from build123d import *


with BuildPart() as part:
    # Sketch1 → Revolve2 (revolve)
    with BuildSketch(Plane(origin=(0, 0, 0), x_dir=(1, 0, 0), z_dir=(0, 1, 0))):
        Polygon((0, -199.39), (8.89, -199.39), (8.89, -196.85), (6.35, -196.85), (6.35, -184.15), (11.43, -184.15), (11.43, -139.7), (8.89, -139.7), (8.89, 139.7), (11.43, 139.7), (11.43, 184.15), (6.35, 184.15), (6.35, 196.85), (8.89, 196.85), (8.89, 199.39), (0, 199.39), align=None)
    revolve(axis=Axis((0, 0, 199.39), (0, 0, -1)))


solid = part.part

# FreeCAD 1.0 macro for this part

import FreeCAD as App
import Part
import Sketcher
Q = App.Units.Quantity


def add_polygon(sketch, points):
    """Adds a closed chain of lines whose ends are joined by coincident constraints."""
    first, n = sketch.GeometryCount, len(points)
    for a, b in zip(points, points[1:] + points[:1]):
        sketch.addGeometry(Part.LineSegment(App.Vector(*a, 0), App.Vector(*b, 0)), False)
    for i in range(n):
        sketch.addConstraint(Sketcher.Constraint("Coincident", first + i, 2, first + (i + 1) % n, 1))

doc = App.newDocument("Part")
params = doc.addObject("Spreadsheet::Sheet", "Params")
for row, (alias, value) in enumerate([
    ("sketch1_height", "11 in"),
    ("sketch1_width", "0.1 in"),
    ("sketch1_height2", "0.5 in"),
    ("sketch1_height3", "15.7 in"),
    ("sketch1_width2", "0.35 in"),
    ("revolution_angle", "360 deg"),
], start=1):
    params.set(f"A{row}", alias)
    params.set(f"B{row}", "=" + value)
    params.setAlias(f"B{row}", alias)

body = doc.addObject("PartDesign::Body", "Body")

# Sketch on XZ plane
sketch1 = body.newObject("Sketcher::SketchObject", "Sketch")
sketch1.AttachmentSupport = (doc.getObject("XZ_Plane"), [""])
sketch1.MapMode = "FlatFace"
add_polygon(sketch1, [(0, 199.4), (8.9, 199.4), (8.9, 196.8), (6.3, 196.8), (6.3, 184.2), (11.4, 184.2), (11.4, 139.7), (8.9, 139.7), (8.9, -139.7), (11.4, -139.7), (11.4, -184.2), (6.3, -184.2), (6.3, -196.8), (8.9, -196.8), (8.9, -199.4), (0, -199.4)])  # lines 0-15
sketch1.addConstraint(Sketcher.Constraint("Horizontal", 0))
sketch1.addConstraint(Sketcher.Constraint("Vertical", 1))
sketch1.addConstraint(Sketcher.Constraint("Horizontal", 2))
sketch1.addConstraint(Sketcher.Constraint("Vertical", 3))
sketch1.addConstraint(Sketcher.Constraint("Horizontal", 4))
sketch1.addConstraint(Sketcher.Constraint("Vertical", 5))
sketch1.addConstraint(Sketcher.Constraint("Horizontal", 6))
sketch1.addConstraint(Sketcher.Constraint("Vertical", 7))
sketch1.addConstraint(Sketcher.Constraint("Horizontal", 8))
sketch1.addConstraint(Sketcher.Constraint("Vertical", 9))
sketch1.addConstraint(Sketcher.Constraint("Horizontal", 10))
sketch1.addConstraint(Sketcher.Constraint("Vertical", 11))
sketch1.addConstraint(Sketcher.Constraint("Horizontal", 12))
sketch1.addConstraint(Sketcher.Constraint("Vertical", 13))
sketch1.addConstraint(Sketcher.Constraint("Horizontal", 14))
sketch1.addConstraint(Sketcher.Constraint("Vertical", 15))
sketch1.addConstraint(Sketcher.Constraint("Symmetric", 14, 2, 15, 2, -1, 1))
sketch1.addConstraint(Sketcher.Constraint("Symmetric", 5, 2, 8, 2, -1))
sketch1.addConstraint(Sketcher.Constraint("Symmetric", 3, 2, 10, 2, -1))
sketch1.addConstraint(Sketcher.Constraint("Symmetric", 1, 2, 12, 2, -1))
sketch1.addConstraint(Sketcher.Constraint("Vertical", 1, 2, 6, 2))
sketch1.addConstraint(Sketcher.Constraint("Equal", 2, 6))
sketch1.addConstraint(Sketcher.Constraint("Equal", 12, 1))
sketch1.addConstraint(Sketcher.Constraint("DistanceY", 7, 2, 7, 1, Q("11 in")))
sketch1.addConstraint(Sketcher.Constraint("DistanceX", 2, 2, 2, 1, Q("0.1 in")))
sketch1.addConstraint(Sketcher.Constraint("DistanceY", 3, 2, 3, 1, Q("0.5 in")))
sketch1.addConstraint(Sketcher.Constraint("DistanceY", 15, 1, 15, 2, Q("15.7 in")))
sketch1.addConstraint(Sketcher.Constraint("DistanceX", 0, 1, 0, 2, Q("0.35 in")))
sketch1.setExpression("Constraints[39]", "Params.sketch1_height")
sketch1.setExpression("Constraints[40]", "Params.sketch1_width")
sketch1.setExpression("Constraints[41]", "Params.sketch1_height2")
sketch1.setExpression("Constraints[42]", "Params.sketch1_height3")
sketch1.setExpression("Constraints[43]", "Params.sketch1_width2")
revolution = body.newObject("PartDesign::Revolution", "Revolution")
revolution.Profile = sketch1
revolution.ReferenceAxis = (sketch1, ["V_Axis"])
revolution.setExpression("Angle", "Params.revolution_angle")

doc.recompute()
